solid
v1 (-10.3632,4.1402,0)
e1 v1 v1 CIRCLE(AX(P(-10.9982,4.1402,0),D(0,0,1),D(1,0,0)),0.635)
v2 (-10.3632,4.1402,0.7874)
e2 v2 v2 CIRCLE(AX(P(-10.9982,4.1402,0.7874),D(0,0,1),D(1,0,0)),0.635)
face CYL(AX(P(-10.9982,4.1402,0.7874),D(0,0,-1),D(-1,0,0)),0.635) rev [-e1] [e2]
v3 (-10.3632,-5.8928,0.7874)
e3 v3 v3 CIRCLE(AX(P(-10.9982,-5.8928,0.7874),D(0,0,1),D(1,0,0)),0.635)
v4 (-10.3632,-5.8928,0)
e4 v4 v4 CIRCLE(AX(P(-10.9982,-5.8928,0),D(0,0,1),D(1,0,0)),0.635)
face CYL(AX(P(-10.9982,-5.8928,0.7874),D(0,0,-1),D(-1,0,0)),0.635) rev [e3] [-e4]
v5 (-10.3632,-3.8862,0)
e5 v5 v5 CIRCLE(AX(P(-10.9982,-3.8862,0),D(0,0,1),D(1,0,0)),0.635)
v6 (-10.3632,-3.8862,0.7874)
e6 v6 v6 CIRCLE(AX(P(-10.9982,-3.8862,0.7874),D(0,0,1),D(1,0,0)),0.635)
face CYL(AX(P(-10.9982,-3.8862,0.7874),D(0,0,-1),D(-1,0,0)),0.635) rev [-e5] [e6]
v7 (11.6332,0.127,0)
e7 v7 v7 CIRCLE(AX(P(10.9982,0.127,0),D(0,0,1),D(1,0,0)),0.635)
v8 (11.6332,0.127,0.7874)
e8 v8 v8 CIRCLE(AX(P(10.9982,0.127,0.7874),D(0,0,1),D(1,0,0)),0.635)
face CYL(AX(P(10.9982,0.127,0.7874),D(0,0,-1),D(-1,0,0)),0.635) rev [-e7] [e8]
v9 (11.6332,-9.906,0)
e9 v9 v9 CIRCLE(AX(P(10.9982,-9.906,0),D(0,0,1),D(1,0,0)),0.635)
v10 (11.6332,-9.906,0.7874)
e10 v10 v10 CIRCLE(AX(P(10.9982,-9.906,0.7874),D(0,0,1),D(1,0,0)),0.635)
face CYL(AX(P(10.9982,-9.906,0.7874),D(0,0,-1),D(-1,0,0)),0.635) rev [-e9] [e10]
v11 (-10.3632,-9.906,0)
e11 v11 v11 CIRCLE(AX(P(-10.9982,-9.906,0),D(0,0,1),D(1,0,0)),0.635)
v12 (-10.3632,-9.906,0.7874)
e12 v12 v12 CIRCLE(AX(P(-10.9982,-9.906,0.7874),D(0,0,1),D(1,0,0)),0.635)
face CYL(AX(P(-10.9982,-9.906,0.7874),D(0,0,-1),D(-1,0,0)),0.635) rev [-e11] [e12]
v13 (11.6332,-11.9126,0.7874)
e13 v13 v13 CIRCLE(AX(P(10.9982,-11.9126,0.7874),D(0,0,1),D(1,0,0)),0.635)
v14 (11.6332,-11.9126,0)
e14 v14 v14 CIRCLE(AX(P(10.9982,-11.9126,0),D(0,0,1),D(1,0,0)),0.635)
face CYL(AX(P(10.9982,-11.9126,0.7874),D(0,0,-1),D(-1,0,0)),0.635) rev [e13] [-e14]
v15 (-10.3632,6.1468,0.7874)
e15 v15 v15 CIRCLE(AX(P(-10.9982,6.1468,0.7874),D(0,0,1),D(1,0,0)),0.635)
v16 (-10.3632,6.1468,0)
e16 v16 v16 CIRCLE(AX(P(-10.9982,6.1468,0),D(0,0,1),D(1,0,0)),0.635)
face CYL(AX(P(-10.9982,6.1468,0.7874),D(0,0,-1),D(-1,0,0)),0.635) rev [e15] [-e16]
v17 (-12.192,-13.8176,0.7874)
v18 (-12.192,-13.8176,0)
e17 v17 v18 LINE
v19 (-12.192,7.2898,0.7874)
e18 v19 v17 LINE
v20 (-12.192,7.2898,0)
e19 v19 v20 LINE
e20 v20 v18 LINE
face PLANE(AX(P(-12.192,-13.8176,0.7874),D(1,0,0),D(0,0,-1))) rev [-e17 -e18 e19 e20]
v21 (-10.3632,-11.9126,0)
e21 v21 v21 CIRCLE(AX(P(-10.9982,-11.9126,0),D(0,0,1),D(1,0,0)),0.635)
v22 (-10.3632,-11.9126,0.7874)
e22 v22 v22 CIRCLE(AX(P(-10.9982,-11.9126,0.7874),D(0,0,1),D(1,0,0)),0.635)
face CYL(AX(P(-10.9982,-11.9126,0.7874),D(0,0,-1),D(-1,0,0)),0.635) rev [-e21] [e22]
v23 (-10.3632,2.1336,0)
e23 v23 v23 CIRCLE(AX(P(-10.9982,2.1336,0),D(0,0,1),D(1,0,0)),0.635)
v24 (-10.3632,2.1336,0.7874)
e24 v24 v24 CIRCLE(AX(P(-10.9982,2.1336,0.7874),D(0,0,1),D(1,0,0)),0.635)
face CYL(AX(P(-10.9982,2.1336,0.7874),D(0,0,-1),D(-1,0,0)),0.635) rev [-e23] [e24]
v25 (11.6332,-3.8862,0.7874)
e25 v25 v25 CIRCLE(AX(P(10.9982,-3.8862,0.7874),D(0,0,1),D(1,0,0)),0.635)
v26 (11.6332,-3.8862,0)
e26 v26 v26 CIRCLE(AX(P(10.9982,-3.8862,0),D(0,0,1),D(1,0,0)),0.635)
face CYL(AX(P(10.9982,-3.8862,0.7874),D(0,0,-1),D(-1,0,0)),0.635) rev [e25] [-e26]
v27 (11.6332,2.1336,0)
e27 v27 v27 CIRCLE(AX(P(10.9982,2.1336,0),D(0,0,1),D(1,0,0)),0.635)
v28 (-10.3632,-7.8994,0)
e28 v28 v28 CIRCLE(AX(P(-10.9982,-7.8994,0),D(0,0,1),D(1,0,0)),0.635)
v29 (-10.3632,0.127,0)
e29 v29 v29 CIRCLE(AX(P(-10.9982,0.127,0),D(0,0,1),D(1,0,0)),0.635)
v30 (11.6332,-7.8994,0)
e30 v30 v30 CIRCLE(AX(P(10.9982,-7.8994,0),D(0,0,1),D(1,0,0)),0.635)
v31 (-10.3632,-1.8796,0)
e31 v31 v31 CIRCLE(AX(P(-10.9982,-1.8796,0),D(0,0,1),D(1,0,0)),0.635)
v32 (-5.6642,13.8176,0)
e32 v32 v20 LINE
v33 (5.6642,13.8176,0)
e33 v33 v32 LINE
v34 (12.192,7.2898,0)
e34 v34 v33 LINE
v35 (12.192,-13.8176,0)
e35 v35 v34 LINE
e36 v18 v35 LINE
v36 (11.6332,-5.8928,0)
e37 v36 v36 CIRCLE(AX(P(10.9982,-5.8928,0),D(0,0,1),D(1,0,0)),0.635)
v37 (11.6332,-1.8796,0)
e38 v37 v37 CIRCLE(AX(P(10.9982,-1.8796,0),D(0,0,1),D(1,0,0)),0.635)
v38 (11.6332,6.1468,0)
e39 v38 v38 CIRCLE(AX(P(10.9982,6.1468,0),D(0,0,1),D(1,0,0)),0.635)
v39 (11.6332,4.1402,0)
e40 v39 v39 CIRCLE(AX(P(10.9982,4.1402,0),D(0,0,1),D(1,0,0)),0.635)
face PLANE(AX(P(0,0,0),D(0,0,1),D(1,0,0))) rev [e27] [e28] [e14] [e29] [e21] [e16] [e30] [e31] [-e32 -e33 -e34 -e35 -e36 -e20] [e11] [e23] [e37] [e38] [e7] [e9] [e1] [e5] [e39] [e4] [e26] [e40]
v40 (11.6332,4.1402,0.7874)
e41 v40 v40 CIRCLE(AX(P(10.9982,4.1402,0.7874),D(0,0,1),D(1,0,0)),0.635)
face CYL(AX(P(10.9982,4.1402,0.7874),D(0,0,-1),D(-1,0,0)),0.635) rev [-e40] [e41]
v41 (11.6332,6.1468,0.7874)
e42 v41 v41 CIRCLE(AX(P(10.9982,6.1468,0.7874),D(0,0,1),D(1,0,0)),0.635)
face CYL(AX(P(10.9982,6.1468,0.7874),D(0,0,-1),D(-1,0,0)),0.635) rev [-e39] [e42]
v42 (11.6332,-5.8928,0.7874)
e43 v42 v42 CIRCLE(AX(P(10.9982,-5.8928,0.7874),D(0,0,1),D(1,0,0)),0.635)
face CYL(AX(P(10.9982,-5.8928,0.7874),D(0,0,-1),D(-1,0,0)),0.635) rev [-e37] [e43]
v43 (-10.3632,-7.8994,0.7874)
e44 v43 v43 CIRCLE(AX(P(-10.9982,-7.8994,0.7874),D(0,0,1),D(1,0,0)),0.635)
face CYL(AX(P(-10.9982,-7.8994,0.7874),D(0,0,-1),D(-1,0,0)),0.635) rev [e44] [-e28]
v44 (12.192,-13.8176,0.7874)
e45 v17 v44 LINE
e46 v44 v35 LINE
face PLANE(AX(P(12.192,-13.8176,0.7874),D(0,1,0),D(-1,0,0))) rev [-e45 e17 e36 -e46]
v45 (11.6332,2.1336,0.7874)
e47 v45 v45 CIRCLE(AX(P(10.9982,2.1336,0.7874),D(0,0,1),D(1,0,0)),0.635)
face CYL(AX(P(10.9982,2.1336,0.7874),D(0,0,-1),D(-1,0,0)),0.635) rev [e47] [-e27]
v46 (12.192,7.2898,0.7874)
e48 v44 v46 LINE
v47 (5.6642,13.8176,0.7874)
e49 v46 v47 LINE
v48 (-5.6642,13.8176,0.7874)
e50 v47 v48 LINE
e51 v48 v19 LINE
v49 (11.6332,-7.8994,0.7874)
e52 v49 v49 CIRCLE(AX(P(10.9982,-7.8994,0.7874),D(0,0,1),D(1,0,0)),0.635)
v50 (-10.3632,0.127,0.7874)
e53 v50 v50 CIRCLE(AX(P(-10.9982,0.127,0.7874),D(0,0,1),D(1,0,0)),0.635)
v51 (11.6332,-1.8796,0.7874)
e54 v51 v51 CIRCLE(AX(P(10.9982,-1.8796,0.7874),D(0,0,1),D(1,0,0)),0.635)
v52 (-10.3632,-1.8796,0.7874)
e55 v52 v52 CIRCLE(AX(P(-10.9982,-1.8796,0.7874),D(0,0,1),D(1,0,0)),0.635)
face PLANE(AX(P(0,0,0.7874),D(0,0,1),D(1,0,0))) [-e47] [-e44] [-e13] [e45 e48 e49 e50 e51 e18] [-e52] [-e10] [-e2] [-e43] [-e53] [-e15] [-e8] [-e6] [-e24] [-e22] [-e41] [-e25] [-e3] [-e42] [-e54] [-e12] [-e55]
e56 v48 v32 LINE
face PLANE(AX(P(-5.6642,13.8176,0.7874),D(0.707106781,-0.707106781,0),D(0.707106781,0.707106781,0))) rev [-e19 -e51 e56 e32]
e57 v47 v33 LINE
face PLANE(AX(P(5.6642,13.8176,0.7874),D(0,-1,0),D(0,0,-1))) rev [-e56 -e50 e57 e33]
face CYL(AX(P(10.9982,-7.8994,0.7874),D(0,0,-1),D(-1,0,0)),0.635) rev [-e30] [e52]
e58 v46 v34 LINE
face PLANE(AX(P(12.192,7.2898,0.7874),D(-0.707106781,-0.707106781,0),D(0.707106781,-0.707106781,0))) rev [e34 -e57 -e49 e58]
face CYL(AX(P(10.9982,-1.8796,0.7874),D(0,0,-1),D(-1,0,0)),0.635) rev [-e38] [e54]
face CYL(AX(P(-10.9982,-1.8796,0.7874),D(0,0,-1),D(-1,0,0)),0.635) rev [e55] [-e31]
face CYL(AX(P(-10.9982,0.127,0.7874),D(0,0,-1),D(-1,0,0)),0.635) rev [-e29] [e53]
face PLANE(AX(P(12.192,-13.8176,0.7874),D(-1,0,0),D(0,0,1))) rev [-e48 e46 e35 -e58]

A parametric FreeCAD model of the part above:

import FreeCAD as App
import Part
import Sketcher
from FreeCAD import Vector
Q = App.Units.Quantity

doc = App.newDocument("Part")
body = doc.addObject("PartDesign::Body", "Body")

sketch1 = body.newObject("Sketcher::SketchObject", "Sketch")
sketch1.AttachmentSupport = (doc.getObject("XY_Plane"), [""])
sketch1.MapMode = "FlatFace"
sketch1.addGeometry(Part.LineSegment(Vector(-5.7, 13.8, 0), Vector(-12.2, 7.3, 0)), False)
sketch1.addGeometry(Part.LineSegment(Vector(-12.2, 7.3, 0), Vector(-12.2, -13.8, 0)), False)
sketch1.addGeometry(Part.LineSegment(Vector(-12.2, -13.8, 0), Vector(12.2, -13.8, 0)), False)
sketch1.addGeometry(Part.LineSegment(Vector(12.2, -13.8, 0), Vector(12.2, 7.3, 0)), False)
sketch1.addGeometry(Part.LineSegment(Vector(12.2, 7.3, 0), Vector(5.7, 13.8, 0)), False)
sketch1.addGeometry(Part.LineSegment(Vector(5.7, 13.8, 0), Vector(-5.7, 13.8, 0)), False)
sketch1.addGeometry(Part.Circle(Vector(-11, -11.9, 0), Vector(0, 0, 1), 0.6), False)
sketch1.addGeometry(Part.Circle(Vector(-11, -9.9, 0), Vector(0, 0, 1), 0.6), False)
sketch1.addGeometry(Part.Circle(Vector(-11, -7.9, 0), Vector(0, 0, 1), 0.6), False)
sketch1.addGeometry(Part.Circle(Vector(-11, -5.9, 0), Vector(0, 0, 1), 0.6), False)
sketch1.addGeometry(Part.Circle(Vector(-11, -3.9, 0), Vector(0, 0, 1), 0.6), False)
sketch1.addGeometry(Part.Circle(Vector(11, -11.9, 0), Vector(0, 0, 1), 0.6), False)
sketch1.addGeometry(Part.Circle(Vector(11, -9.9, 0), Vector(0, 0, 1), 0.6), False)
sketch1.addGeometry(Part.Circle(Vector(11, -7.9, 0), Vector(0, 0, 1), 0.6), False)
sketch1.addGeometry(Part.Circle(Vector(11, -5.9, 0), Vector(0, 0, 1), 0.6), False)
sketch1.addGeometry(Part.Circle(Vector(11, -3.9, 0), Vector(0, 0, 1), 0.6), False)
sketch1.addGeometry(Part.Circle(Vector(-11, -1.9, 0), Vector(0, 0, 1), 0.6), False)
sketch1.addGeometry(Part.Circle(Vector(-11, 0.1, 0), Vector(0, 0, 1), 0.6), False)
sketch1.addGeometry(Part.Circle(Vector(-11, 2.1, 0), Vector(0, 0, 1), 0.6), False)
sketch1.addGeometry(Part.Circle(Vector(-11, 4.1, 0), Vector(0, 0, 1), 0.6), False)
sketch1.addGeometry(Part.Circle(Vector(-11, 6.1, 0), Vector(0, 0, 1), 0.6), False)
sketch1.addGeometry(Part.Circle(Vector(11, -1.9, 0), Vector(0, 0, 1), 0.6), False)
sketch1.addGeometry(Part.Circle(Vector(11, 0.1, 0), Vector(0, 0, 1), 0.6), False)
sketch1.addGeometry(Part.Circle(Vector(11, 2.1, 0), Vector(0, 0, 1), 0.6), False)
sketch1.addGeometry(Part.Circle(Vector(11, 4.1, 0), Vector(0, 0, 1), 0.6), False)
sketch1.addGeometry(Part.Circle(Vector(11, 6.1, 0), Vector(0, 0, 1), 0.6), False)
sketch1.addConstraint(Sketcher.Constraint("Coincident", 0, 2, 1, 1))
sketch1.addConstraint(Sketcher.Constraint("Coincident", 1, 2, 2, 1))
sketch1.addConstraint(Sketcher.Constraint("Coincident", 2, 2, 3, 1))
sketch1.addConstraint(Sketcher.Constraint("Coincident", 3, 2, 4, 1))
sketch1.addConstraint(Sketcher.Constraint("Coincident", 4, 2, 5, 1))
sketch1.addConstraint(Sketcher.Constraint("Coincident", 5, 2, 0, 1))
sketch1.addConstraint(Sketcher.Constraint("Vertical", 1))
sketch1.addConstraint(Sketcher.Constraint("Horizontal", 2))
sketch1.addConstraint(Sketcher.Constraint("Vertical", 3))
sketch1.addConstraint(Sketcher.Constraint("Horizontal", 5))
sketch1.addConstraint(Sketcher.Constraint("Equal", 6, 7))
sketch1.addConstraint(Sketcher.Constraint("Equal", 7, 8))
sketch1.addConstraint(Sketcher.Constraint("Equal", 8, 9))
sketch1.addConstraint(Sketcher.Constraint("Equal", 9, 10))
sketch1.addConstraint(Sketcher.Constraint("Equal", 10, 11))
sketch1.addConstraint(Sketcher.Constraint("Equal", 11, 12))
sketch1.addConstraint(Sketcher.Constraint("Equal", 12, 13))
sketch1.addConstraint(Sketcher.Constraint("Equal", 13, 14))
sketch1.addConstraint(Sketcher.Constraint("Equal", 14, 15))
sketch1.addConstraint(Sketcher.Constraint("Equal", 15, 16))
sketch1.addConstraint(Sketcher.Constraint("Equal", 16, 17))
sketch1.addConstraint(Sketcher.Constraint("Equal", 17, 18))
sketch1.addConstraint(Sketcher.Constraint("Equal", 18, 19))
sketch1.addConstraint(Sketcher.Constraint("Equal", 19, 20))
sketch1.addConstraint(Sketcher.Constraint("Equal", 20, 21))
sketch1.addConstraint(Sketcher.Constraint("Equal", 21, 22))
sketch1.addConstraint(Sketcher.Constraint("Equal", 22, 23))
sketch1.addConstraint(Sketcher.Constraint("Equal", 23, 24))
sketch1.addConstraint(Sketcher.Constraint("Equal", 24, 25))
sketch1.addConstraint(Sketcher.Constraint("Symmetric", 6, 3, 11, 3, -2))
sketch1.addConstraint(Sketcher.Constraint("Symmetric", 7, 3, 12, 3, -2))
sketch1.addConstraint(Sketcher.Constraint("Symmetric", 8, 3, 13, 3, -2))
sketch1.addConstraint(Sketcher.Constraint("Symmetric", 9, 3, 14, 3, -2))
sketch1.addConstraint(Sketcher.Constraint("Symmetric", 10, 3, 15, 3, -2))
sketch1.addConstraint(Sketcher.Constraint("Symmetric", 16, 3, 21, 3, -2))
sketch1.addConstraint(Sketcher.Constraint("Symmetric", 17, 3, 22, 3, -2))
sketch1.addConstraint(Sketcher.Constraint("Symmetric", 18, 3, 23, 3, -2))
sketch1.addConstraint(Sketcher.Constraint("Symmetric", 19, 3, 24, 3, -2))
sketch1.addConstraint(Sketcher.Constraint("Symmetric", 20, 3, 25, 3, -2))
sketch1.addConstraint(Sketcher.Constraint("Symmetric", 0, 2, 3, 2, -2))
sketch1.addConstraint(Sketcher.Constraint("Perpendicular", 0, 4))
sketch1.addConstraint(Sketcher.Constraint("Vertical", 6, 3, 7, 3))
sketch1.addConstraint(Sketcher.Constraint("Vertical", 7, 3, 8, 3))
sketch1.addConstraint(Sketcher.Constraint("Vertical", 8, 3, 9, 3))
sketch1.addConstraint(Sketcher.Constraint("Vertical", 9, 3, 10, 3))
sketch1.addConstraint(Sketcher.Constraint("Vertical", 10, 3, 16, 3))
sketch1.addConstraint(Sketcher.Constraint("Vertical", 16, 3, 17, 3))
sketch1.addConstraint(Sketcher.Constraint("Vertical", 17, 3, 18, 3))
sketch1.addConstraint(Sketcher.Constraint("Vertical", 18, 3, 19, 3))
sketch1.addConstraint(Sketcher.Constraint("Vertical", 19, 3, 20, 3))
sketch1.addConstraint(Sketcher.Constraint("Equal", 0, 4))
sketch1.addConstraint(Sketcher.Constraint("Diameter", 6, Q("0.05 in")))
sketch1.addConstraint(Sketcher.Constraint("DistanceX", 2, 1, 2, 2, Q("0.96 in")))
sketch1.addConstraint(Sketcher.Constraint("DistanceX", 5, 2, 5, 1, Q("0.446 in")))
sketch1.addConstraint(Sketcher.Constraint("DistanceY", 1, 2, 1, 1, Q("0.831 in")))
sketch1.addConstraint(Sketcher.Constraint("DistanceY", 7, 3, -1, 1, Q("0.39 in")))
sketch1.addConstraint(Sketcher.Constraint("DistanceX", 4, 2, 25, 3, Q("0.21 in")))
sketch1.addConstraint(Sketcher.Constraint("DistanceY", 23, 3, 4, 2, Q("0.46 in")))
sketch1.addConstraint(Sketcher.Constraint("DistanceY", 6, 3, -1, 1, Q("0.469 in")))
sketch1.addConstraint(Sketcher.Constraint("DistanceY", 8, 3, -1, 1, Q("0.311 in")))
sketch1.addConstraint(Sketcher.Constraint("DistanceY", 9, 3, -1, 1, Q("0.232 in")))
sketch1.addConstraint(Sketcher.Constraint("DistanceY", 10, 3, -1, 1, Q("0.153 in")))
sketch1.addConstraint(Sketcher.Constraint("DistanceY", 16, 3, -1, 1, Q("0.074 in")))
sketch1.addConstraint(Sketcher.Constraint("DistanceY", -1, 1, 17, 3, Q("0.005 in")))
sketch1.addConstraint(Sketcher.Constraint("DistanceY", -1, 1, 18, 3, Q("0.084 in")))
sketch1.addConstraint(Sketcher.Constraint("DistanceY", -1, 1, 19, 3, Q("0.163 in")))
sketch1.addConstraint(Sketcher.Constraint("DistanceY", -1, 1, 20, 3, Q("0.242 in")))
pad1 = body.newObject("PartDesign::Pad", "Pad")
pad1.Profile = sketch1
pad1.Length = Q("0.031 in")

doc.recompute()
